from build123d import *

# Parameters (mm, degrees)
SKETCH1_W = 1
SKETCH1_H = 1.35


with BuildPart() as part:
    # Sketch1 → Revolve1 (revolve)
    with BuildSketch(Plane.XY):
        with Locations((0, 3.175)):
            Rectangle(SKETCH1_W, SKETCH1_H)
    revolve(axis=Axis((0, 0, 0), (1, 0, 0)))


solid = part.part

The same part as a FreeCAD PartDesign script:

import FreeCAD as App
import Part
import Sketcher

V = App.Vector
Q = App.Units.Quantity


def add_polygon(sketch, points):
    """Adds a closed chain of lines whose ends are joined by coincident constraints."""
    first, n = sketch.GeometryCount, len(points)
    for a, b in zip(points, points[1:] + points[:1]):
        sketch.addGeometry(Part.LineSegment(App.Vector(*a, 0), App.Vector(*b, 0)), False)
    for i in range(n):
        sketch.addConstraint(Sketcher.Constraint("Coincident", first + i, 2, first + (i + 1) % n, 1))

doc = App.newDocument("Part")
body = doc.addObject("PartDesign::Body", "Body")

# Sketch on XY plane
sketch1 = body.newObject("Sketcher::SketchObject", "Sketch")
sketch1.AttachmentSupport = (doc.getObject("XY_Plane"), [""])
sketch1.MapMode = "FlatFace"
add_polygon(sketch1, [(-0.5, 3.85), (-0.5, 2.5), (0.5, 2.5), (0.5, 3.85)])  # lines 0-3
sketch1.addConstraint([
    Sketcher.Constraint("Vertical", 0),
    Sketcher.Constraint("Horizontal", 1),
    Sketcher.Constraint("Vertical", 2),
    Sketcher.Constraint("Horizontal", 3),
    Sketcher.Constraint("DistanceX", 1, 1, 1, 2, Q("1 mm")),
    Sketcher.Constraint("DistanceY", 0, 2, 0, 1, Q("1.35 mm")),
    Sketcher.Constraint("DistanceX", 0, 2, -1, 1, Q("0.5 mm")),
    Sketcher.Constraint("DistanceY", -1, 1, 0, 2, Q("2.5 mm")),
])
revolution = body.newObject("PartDesign::Revolution", "Revolution")
revolution.Profile = sketch1
revolution.ReferenceAxis = (sketch1, ["H_Axis"])
revolution.Angle = 360

doc.recompute()
